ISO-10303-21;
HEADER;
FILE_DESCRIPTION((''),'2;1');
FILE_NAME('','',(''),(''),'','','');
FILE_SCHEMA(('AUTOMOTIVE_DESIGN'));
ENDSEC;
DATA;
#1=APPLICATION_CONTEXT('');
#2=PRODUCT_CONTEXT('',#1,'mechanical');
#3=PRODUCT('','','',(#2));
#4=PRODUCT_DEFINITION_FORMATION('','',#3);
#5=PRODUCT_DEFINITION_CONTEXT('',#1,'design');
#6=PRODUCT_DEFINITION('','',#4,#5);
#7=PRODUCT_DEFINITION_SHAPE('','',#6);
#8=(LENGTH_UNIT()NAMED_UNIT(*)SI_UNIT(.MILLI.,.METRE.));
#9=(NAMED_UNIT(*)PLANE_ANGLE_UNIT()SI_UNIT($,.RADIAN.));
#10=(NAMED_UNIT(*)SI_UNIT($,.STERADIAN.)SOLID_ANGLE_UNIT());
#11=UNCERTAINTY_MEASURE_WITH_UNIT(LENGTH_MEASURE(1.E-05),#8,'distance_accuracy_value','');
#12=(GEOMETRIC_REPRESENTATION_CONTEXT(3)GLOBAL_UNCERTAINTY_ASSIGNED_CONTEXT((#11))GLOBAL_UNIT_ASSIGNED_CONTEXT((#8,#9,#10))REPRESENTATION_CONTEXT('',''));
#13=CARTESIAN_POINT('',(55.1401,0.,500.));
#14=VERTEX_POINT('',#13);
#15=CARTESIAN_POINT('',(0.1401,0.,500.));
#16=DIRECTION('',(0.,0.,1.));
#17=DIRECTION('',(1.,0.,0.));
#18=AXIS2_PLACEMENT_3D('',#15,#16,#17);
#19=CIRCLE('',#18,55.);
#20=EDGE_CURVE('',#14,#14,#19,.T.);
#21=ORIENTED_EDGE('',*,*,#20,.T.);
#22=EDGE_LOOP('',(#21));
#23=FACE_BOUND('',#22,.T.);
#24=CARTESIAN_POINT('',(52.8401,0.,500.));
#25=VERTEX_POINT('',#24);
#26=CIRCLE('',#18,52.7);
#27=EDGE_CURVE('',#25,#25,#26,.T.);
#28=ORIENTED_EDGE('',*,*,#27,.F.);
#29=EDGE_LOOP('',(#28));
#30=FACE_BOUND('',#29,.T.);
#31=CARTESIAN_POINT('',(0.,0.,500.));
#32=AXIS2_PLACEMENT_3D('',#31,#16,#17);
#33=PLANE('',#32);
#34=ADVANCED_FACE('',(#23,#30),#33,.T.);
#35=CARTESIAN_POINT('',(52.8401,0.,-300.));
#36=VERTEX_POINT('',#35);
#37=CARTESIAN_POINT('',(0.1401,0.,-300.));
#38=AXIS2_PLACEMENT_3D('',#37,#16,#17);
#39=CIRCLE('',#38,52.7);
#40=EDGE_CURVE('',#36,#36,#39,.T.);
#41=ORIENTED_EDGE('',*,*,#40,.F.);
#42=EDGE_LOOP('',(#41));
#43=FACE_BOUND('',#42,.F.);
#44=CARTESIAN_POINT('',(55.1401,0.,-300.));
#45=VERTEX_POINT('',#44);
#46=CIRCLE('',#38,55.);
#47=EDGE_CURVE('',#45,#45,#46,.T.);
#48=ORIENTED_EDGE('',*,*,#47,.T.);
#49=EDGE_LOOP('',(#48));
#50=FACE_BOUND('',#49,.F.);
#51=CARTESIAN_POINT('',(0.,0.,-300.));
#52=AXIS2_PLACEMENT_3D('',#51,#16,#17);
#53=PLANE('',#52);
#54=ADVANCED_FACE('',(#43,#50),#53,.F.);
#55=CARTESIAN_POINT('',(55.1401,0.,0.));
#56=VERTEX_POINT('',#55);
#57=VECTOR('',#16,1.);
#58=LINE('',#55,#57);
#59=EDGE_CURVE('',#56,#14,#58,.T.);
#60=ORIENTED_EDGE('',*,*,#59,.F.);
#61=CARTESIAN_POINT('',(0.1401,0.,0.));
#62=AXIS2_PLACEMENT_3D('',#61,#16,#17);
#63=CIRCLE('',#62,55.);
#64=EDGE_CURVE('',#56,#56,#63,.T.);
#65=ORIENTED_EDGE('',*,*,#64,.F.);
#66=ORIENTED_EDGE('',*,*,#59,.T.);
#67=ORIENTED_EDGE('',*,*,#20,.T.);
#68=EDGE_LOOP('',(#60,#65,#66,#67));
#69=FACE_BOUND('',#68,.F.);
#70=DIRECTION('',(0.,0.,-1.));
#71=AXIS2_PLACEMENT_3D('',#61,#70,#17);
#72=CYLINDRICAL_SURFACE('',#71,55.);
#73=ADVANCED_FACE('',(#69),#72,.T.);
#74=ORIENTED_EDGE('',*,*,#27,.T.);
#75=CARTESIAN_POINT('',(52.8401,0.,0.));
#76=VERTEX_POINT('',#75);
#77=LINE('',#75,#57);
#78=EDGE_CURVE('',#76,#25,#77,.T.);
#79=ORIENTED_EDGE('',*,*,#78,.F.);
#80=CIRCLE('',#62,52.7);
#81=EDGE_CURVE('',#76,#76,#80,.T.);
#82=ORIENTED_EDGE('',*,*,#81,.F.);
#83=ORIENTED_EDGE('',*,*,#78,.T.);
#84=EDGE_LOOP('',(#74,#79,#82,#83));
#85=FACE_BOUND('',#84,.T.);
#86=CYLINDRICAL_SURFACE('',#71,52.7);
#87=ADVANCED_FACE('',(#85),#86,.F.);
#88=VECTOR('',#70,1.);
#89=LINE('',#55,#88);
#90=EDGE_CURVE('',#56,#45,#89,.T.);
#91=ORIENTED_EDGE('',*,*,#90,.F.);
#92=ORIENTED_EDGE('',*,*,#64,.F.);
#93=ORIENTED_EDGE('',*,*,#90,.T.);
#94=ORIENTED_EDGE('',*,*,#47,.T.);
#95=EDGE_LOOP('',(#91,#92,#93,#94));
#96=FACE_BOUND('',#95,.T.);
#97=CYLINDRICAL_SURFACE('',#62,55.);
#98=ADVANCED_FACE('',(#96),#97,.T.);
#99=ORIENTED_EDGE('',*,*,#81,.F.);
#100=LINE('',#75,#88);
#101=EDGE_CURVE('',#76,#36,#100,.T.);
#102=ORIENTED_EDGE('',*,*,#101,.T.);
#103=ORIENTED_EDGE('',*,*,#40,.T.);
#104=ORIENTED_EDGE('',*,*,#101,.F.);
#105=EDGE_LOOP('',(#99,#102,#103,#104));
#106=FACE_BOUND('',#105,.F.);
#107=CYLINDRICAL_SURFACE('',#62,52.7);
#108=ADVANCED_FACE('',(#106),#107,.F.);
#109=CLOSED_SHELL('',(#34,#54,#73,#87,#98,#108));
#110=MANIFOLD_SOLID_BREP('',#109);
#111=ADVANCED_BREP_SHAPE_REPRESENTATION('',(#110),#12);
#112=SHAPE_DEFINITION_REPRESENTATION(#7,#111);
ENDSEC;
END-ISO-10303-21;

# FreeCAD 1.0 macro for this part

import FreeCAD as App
import Part
import Sketcher
Q = App.Units.Quantity

doc = App.newDocument("Part")
params = doc.addObject("Spreadsheet::Sheet", "Params")
for row, (alias, value) in enumerate([
    ("sketch1_diameter", "110 mm"),
    ("sketch1_diameter2", "105.4 mm"),
    ("pad1_length", "500 mm"),
    ("pad1_length2", "300 mm"),
], start=1):
    params.set(f"A{row}", alias)
    params.set(f"B{row}", "=" + value)
    params.setAlias(f"B{row}", alias)

body = doc.addObject("PartDesign::Body", "Body")

sketch1 = body.newObject("Sketcher::SketchObject", "Sketch")
sketch1.AttachmentSupport = (doc.getObject("XY_Plane"), [""])
sketch1.MapMode = "FlatFace"
sketch1.addGeometry([
    Part.Circle(App.Vector(0, 0, 0), App.Vector(0, 0, 1), 55),
    Part.Circle(App.Vector(0, 0, 0), App.Vector(0, 0, 1), 53),
], False)
sketch1.addConstraint([
    Sketcher.Constraint("Coincident", 1, 3, 0, 3),
    Sketcher.Constraint("PointOnObject", 0, 3, -1),
    Sketcher.Constraint("Diameter", 0, Q("110 mm")),
    Sketcher.Constraint("Diameter", 1, Q("105.4 mm")),
    Sketcher.Constraint("DistanceX", -1, 1, 0, 3, Q("0.14 mm")),
])
sketch1.setExpression("Constraints[2]", "Params.sketch1_diameter")
sketch1.setExpression("Constraints[3]", "Params.sketch1_diameter2")
pad1 = body.newObject("PartDesign::Pad", "Pad")
pad1.Profile = sketch1
pad1.Type = "TwoLengths"
pad1.setExpression("Length", "Params.pad1_length")
pad1.setExpression("Length2", "Params.pad1_length2")

doc.recompute()
